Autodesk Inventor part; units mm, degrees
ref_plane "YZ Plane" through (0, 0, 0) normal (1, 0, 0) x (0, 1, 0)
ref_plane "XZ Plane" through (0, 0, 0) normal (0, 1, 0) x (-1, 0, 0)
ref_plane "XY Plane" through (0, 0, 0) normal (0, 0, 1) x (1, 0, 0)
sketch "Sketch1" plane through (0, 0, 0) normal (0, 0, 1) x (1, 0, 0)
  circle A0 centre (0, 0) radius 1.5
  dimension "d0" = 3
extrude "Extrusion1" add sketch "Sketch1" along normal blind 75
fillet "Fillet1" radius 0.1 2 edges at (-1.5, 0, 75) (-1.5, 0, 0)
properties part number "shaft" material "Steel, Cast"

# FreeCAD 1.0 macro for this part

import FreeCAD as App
import Part
import Sketcher

V = App.Vector


def edges_at(feature, points):
    """Names of the edges that pass closest to the given points."""
    edges = feature.Shape.Edges
    near = lambda p: min(range(len(edges)), key=lambda i: edges[i].distToShape(Part.Vertex(*p))[0])
    return sorted({f"Edge{near(p) + 1}" for p in points})

doc = App.newDocument("Part")
body = doc.addObject("PartDesign::Body", "Body")

sketch1 = doc.addObject("Sketcher::SketchObject", "Sketch")
body.addObject(sketch1)
sketch1.AttachmentSupport = (doc.XY_Plane, [""])
sketch1.MapMode = "FlatFace"
sketch1.addGeometry(Part.Circle(V(0, 0, 0), V(0, 0, 1), 1.5), False)
sketch1.addConstraint([
    Sketcher.Constraint("Coincident", 0, 3, -1, 1),
    Sketcher.Constraint("Diameter", 0, 3.0),
])
pad1 = doc.addObject("PartDesign::Pad", "Pad")
body.addObject(pad1)
pad1.Profile = sketch1
pad1.Length = 75
doc.recompute()

fillet = doc.addObject("PartDesign::Fillet", "Fillet")
body.addObject(fillet)
fillet.Base = (pad1, edges_at(pad1, [(-1.5, 0, 75), (-1.5, 0, 0)]))
fillet.Radius = 0.1

doc.recompute()
